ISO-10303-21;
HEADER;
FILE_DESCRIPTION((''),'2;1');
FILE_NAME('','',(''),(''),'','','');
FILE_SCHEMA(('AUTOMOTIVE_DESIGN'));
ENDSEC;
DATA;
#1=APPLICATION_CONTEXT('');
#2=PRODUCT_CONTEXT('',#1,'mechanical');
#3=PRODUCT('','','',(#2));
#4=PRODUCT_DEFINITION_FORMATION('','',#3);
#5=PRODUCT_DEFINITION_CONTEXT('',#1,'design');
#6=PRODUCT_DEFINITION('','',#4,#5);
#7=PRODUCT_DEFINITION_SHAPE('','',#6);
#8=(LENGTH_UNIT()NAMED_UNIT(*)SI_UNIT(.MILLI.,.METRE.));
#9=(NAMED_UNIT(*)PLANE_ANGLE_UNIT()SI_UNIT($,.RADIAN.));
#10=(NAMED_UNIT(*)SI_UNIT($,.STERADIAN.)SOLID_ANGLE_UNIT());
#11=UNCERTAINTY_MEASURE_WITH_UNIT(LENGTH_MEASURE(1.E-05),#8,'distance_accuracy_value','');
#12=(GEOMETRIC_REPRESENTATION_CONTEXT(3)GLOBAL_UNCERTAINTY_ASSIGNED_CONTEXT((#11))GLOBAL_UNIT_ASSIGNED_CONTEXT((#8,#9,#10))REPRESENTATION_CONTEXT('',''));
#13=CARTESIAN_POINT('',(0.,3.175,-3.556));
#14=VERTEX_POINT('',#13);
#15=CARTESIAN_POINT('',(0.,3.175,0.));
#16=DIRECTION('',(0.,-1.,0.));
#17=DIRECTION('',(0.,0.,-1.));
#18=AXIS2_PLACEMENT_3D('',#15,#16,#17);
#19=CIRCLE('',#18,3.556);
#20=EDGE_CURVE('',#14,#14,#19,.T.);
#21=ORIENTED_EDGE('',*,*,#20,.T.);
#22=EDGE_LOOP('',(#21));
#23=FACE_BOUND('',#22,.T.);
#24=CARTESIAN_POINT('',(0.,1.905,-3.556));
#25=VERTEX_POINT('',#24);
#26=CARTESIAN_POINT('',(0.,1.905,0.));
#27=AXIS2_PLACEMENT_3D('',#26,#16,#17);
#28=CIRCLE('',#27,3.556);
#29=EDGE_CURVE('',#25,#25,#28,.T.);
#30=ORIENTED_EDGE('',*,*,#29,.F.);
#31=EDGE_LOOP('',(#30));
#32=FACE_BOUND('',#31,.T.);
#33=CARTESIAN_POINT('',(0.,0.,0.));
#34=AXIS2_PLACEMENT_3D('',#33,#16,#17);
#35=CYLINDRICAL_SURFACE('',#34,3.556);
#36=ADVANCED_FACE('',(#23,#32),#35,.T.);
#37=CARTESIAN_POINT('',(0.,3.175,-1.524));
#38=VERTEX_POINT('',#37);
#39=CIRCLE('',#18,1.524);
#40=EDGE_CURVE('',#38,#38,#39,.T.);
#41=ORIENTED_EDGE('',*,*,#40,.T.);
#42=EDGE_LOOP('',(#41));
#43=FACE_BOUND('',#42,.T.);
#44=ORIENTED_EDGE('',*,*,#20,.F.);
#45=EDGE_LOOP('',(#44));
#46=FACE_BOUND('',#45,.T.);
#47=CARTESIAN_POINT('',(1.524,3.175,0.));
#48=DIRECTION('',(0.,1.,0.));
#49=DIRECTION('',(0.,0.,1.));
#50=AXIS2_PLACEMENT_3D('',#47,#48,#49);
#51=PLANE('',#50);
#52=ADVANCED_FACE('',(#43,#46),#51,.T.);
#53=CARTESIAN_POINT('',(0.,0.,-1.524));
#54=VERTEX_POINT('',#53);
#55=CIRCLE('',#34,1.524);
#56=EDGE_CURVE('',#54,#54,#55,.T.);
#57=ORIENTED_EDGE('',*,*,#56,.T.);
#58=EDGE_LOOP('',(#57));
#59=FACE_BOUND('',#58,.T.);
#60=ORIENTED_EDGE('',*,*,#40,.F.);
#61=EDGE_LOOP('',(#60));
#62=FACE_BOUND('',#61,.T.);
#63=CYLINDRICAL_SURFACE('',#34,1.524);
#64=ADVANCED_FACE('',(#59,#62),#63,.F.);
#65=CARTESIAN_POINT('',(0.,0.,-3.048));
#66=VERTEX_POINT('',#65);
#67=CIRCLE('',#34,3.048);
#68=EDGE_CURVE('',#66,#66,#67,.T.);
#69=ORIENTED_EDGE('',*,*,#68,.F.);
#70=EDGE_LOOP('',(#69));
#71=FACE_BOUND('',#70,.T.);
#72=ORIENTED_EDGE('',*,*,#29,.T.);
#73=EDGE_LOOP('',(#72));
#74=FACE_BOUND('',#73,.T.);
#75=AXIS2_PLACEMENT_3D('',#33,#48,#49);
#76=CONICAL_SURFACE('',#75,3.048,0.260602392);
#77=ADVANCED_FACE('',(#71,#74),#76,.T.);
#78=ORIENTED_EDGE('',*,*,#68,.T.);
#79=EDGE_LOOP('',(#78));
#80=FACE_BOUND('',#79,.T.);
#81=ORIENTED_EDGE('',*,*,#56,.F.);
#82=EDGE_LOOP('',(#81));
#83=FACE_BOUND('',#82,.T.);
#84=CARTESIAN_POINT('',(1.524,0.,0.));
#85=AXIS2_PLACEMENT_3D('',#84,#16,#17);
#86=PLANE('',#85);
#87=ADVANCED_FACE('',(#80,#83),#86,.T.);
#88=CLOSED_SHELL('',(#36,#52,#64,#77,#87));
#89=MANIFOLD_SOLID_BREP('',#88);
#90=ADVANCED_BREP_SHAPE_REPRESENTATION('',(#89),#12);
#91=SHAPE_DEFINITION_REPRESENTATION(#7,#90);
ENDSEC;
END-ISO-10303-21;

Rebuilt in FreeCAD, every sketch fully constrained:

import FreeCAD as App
import Part
import Sketcher

V = App.Vector
Q = App.Units.Quantity

doc = App.newDocument("Part")
params = doc.addObject("Spreadsheet::Sheet", "Params")
for row, (alias, value) in enumerate([
    ("sketch1_width", "0.08 in"),
    ("sketch1_width2", "0.06 in"),
    ("sketch1_height", "0.05 in"),
    ("sketch1_height2", "0.125 in"),
    ("revolution_angle", "360 deg"),
], start=1):
    params.set(f"A{row}", alias)
    params.set(f"B{row}", "=" + value)
    params.setAlias(f"B{row}", alias)

body = doc.addObject("PartDesign::Body", "Body")

# Sketch on XY plane
sketch1 = body.newObject("Sketcher::SketchObject", "Sketch")
sketch1.AttachmentSupport = (doc.getObject("XY_Plane"), [""])
sketch1.MapMode = "FlatFace"
sketch1.addGeometry(Part.LineSegment(V(3, 0, 0), V(3.6, 1.9, 0)), False)
sketch1.addGeometry(Part.LineSegment(V(3.6, 1.9, 0), V(3.6, 3.2, 0)), False)
sketch1.addGeometry(Part.LineSegment(V(3.6, 3.2, 0), V(1.5, 3.2, 0)), False)
sketch1.addGeometry(Part.LineSegment(V(1.5, 3.2, 0), V(1.5, 0, 0)), False)
sketch1.addGeometry(Part.LineSegment(V(1.5, 0, 0), V(3, 0, 0)), False)
sketch1.addConstraint(Sketcher.Constraint("Coincident", 0, 2, 1, 1))
sketch1.addConstraint(Sketcher.Constraint("Coincident", 1, 2, 2, 1))
sketch1.addConstraint(Sketcher.Constraint("Coincident", 2, 2, 3, 1))
sketch1.addConstraint(Sketcher.Constraint("Coincident", 3, 2, 4, 1))
sketch1.addConstraint(Sketcher.Constraint("Coincident", 4, 2, 0, 1))
sketch1.addConstraint(Sketcher.Constraint("Vertical", 1))
sketch1.addConstraint(Sketcher.Constraint("Horizontal", 2))
sketch1.addConstraint(Sketcher.Constraint("Vertical", 3))
sketch1.addConstraint(Sketcher.Constraint("Horizontal", 4))
sketch1.addConstraint(Sketcher.Constraint("PointOnObject", 3, 2, -1))
sketch1.addConstraint(Sketcher.Constraint("DistanceX", 2, 2, 2, 1, Q("0.08 in")))
sketch1.addConstraint(Sketcher.Constraint("DistanceX", 4, 1, 4, 2, Q("0.06 in")))
sketch1.addConstraint(Sketcher.Constraint("DistanceY", 1, 1, 1, 2, Q("0.05 in")))
sketch1.addConstraint(Sketcher.Constraint("DistanceY", 3, 2, 3, 1, Q("0.125 in")))
sketch1.addConstraint(Sketcher.Constraint("DistanceX", -1, 1, 0, 2, Q("0.14 in")))
sketch1.setExpression("Constraints[10]", "Params.sketch1_width")
sketch1.setExpression("Constraints[11]", "Params.sketch1_width2")
sketch1.setExpression("Constraints[12]", "Params.sketch1_height")
sketch1.setExpression("Constraints[13]", "Params.sketch1_height2")
revolution = body.newObject("PartDesign::Revolution", "Revolution")
revolution.Profile = sketch1
revolution.ReferenceAxis = (sketch1, ["V_Axis"])
revolution.setExpression("Angle", "Params.revolution_angle")

doc.recompute()
